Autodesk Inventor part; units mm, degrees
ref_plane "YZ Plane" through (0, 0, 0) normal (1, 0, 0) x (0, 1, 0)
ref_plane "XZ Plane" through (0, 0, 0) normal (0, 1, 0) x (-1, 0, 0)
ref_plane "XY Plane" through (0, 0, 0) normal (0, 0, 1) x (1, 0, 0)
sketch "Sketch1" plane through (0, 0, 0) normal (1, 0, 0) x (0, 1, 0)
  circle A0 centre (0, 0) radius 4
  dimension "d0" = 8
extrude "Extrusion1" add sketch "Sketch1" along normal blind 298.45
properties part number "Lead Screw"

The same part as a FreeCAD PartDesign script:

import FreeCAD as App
import Part
import Sketcher
from FreeCAD import Vector

doc = App.newDocument("Part")
body = doc.addObject("PartDesign::Body", "Body")

sketch1 = body.newObject("Sketcher::SketchObject", "Sketch")
sketch1.AttachmentSupport = (doc.getObject("YZ_Plane"), [""])
sketch1.MapMode = "FlatFace"
sketch1.addGeometry(Part.Circle(Vector(0, 0, 0), Vector(0, 0, 1), 4), False)
sketch1.addConstraint(Sketcher.Constraint("Coincident", 0, 3, -1, 1))
sketch1.addConstraint(Sketcher.Constraint("Diameter", 0, 8.0))
pad1 = body.newObject("PartDesign::Pad", "Pad")
pad1.Profile = sketch1
pad1.Length = 298.45

doc.recompute()
